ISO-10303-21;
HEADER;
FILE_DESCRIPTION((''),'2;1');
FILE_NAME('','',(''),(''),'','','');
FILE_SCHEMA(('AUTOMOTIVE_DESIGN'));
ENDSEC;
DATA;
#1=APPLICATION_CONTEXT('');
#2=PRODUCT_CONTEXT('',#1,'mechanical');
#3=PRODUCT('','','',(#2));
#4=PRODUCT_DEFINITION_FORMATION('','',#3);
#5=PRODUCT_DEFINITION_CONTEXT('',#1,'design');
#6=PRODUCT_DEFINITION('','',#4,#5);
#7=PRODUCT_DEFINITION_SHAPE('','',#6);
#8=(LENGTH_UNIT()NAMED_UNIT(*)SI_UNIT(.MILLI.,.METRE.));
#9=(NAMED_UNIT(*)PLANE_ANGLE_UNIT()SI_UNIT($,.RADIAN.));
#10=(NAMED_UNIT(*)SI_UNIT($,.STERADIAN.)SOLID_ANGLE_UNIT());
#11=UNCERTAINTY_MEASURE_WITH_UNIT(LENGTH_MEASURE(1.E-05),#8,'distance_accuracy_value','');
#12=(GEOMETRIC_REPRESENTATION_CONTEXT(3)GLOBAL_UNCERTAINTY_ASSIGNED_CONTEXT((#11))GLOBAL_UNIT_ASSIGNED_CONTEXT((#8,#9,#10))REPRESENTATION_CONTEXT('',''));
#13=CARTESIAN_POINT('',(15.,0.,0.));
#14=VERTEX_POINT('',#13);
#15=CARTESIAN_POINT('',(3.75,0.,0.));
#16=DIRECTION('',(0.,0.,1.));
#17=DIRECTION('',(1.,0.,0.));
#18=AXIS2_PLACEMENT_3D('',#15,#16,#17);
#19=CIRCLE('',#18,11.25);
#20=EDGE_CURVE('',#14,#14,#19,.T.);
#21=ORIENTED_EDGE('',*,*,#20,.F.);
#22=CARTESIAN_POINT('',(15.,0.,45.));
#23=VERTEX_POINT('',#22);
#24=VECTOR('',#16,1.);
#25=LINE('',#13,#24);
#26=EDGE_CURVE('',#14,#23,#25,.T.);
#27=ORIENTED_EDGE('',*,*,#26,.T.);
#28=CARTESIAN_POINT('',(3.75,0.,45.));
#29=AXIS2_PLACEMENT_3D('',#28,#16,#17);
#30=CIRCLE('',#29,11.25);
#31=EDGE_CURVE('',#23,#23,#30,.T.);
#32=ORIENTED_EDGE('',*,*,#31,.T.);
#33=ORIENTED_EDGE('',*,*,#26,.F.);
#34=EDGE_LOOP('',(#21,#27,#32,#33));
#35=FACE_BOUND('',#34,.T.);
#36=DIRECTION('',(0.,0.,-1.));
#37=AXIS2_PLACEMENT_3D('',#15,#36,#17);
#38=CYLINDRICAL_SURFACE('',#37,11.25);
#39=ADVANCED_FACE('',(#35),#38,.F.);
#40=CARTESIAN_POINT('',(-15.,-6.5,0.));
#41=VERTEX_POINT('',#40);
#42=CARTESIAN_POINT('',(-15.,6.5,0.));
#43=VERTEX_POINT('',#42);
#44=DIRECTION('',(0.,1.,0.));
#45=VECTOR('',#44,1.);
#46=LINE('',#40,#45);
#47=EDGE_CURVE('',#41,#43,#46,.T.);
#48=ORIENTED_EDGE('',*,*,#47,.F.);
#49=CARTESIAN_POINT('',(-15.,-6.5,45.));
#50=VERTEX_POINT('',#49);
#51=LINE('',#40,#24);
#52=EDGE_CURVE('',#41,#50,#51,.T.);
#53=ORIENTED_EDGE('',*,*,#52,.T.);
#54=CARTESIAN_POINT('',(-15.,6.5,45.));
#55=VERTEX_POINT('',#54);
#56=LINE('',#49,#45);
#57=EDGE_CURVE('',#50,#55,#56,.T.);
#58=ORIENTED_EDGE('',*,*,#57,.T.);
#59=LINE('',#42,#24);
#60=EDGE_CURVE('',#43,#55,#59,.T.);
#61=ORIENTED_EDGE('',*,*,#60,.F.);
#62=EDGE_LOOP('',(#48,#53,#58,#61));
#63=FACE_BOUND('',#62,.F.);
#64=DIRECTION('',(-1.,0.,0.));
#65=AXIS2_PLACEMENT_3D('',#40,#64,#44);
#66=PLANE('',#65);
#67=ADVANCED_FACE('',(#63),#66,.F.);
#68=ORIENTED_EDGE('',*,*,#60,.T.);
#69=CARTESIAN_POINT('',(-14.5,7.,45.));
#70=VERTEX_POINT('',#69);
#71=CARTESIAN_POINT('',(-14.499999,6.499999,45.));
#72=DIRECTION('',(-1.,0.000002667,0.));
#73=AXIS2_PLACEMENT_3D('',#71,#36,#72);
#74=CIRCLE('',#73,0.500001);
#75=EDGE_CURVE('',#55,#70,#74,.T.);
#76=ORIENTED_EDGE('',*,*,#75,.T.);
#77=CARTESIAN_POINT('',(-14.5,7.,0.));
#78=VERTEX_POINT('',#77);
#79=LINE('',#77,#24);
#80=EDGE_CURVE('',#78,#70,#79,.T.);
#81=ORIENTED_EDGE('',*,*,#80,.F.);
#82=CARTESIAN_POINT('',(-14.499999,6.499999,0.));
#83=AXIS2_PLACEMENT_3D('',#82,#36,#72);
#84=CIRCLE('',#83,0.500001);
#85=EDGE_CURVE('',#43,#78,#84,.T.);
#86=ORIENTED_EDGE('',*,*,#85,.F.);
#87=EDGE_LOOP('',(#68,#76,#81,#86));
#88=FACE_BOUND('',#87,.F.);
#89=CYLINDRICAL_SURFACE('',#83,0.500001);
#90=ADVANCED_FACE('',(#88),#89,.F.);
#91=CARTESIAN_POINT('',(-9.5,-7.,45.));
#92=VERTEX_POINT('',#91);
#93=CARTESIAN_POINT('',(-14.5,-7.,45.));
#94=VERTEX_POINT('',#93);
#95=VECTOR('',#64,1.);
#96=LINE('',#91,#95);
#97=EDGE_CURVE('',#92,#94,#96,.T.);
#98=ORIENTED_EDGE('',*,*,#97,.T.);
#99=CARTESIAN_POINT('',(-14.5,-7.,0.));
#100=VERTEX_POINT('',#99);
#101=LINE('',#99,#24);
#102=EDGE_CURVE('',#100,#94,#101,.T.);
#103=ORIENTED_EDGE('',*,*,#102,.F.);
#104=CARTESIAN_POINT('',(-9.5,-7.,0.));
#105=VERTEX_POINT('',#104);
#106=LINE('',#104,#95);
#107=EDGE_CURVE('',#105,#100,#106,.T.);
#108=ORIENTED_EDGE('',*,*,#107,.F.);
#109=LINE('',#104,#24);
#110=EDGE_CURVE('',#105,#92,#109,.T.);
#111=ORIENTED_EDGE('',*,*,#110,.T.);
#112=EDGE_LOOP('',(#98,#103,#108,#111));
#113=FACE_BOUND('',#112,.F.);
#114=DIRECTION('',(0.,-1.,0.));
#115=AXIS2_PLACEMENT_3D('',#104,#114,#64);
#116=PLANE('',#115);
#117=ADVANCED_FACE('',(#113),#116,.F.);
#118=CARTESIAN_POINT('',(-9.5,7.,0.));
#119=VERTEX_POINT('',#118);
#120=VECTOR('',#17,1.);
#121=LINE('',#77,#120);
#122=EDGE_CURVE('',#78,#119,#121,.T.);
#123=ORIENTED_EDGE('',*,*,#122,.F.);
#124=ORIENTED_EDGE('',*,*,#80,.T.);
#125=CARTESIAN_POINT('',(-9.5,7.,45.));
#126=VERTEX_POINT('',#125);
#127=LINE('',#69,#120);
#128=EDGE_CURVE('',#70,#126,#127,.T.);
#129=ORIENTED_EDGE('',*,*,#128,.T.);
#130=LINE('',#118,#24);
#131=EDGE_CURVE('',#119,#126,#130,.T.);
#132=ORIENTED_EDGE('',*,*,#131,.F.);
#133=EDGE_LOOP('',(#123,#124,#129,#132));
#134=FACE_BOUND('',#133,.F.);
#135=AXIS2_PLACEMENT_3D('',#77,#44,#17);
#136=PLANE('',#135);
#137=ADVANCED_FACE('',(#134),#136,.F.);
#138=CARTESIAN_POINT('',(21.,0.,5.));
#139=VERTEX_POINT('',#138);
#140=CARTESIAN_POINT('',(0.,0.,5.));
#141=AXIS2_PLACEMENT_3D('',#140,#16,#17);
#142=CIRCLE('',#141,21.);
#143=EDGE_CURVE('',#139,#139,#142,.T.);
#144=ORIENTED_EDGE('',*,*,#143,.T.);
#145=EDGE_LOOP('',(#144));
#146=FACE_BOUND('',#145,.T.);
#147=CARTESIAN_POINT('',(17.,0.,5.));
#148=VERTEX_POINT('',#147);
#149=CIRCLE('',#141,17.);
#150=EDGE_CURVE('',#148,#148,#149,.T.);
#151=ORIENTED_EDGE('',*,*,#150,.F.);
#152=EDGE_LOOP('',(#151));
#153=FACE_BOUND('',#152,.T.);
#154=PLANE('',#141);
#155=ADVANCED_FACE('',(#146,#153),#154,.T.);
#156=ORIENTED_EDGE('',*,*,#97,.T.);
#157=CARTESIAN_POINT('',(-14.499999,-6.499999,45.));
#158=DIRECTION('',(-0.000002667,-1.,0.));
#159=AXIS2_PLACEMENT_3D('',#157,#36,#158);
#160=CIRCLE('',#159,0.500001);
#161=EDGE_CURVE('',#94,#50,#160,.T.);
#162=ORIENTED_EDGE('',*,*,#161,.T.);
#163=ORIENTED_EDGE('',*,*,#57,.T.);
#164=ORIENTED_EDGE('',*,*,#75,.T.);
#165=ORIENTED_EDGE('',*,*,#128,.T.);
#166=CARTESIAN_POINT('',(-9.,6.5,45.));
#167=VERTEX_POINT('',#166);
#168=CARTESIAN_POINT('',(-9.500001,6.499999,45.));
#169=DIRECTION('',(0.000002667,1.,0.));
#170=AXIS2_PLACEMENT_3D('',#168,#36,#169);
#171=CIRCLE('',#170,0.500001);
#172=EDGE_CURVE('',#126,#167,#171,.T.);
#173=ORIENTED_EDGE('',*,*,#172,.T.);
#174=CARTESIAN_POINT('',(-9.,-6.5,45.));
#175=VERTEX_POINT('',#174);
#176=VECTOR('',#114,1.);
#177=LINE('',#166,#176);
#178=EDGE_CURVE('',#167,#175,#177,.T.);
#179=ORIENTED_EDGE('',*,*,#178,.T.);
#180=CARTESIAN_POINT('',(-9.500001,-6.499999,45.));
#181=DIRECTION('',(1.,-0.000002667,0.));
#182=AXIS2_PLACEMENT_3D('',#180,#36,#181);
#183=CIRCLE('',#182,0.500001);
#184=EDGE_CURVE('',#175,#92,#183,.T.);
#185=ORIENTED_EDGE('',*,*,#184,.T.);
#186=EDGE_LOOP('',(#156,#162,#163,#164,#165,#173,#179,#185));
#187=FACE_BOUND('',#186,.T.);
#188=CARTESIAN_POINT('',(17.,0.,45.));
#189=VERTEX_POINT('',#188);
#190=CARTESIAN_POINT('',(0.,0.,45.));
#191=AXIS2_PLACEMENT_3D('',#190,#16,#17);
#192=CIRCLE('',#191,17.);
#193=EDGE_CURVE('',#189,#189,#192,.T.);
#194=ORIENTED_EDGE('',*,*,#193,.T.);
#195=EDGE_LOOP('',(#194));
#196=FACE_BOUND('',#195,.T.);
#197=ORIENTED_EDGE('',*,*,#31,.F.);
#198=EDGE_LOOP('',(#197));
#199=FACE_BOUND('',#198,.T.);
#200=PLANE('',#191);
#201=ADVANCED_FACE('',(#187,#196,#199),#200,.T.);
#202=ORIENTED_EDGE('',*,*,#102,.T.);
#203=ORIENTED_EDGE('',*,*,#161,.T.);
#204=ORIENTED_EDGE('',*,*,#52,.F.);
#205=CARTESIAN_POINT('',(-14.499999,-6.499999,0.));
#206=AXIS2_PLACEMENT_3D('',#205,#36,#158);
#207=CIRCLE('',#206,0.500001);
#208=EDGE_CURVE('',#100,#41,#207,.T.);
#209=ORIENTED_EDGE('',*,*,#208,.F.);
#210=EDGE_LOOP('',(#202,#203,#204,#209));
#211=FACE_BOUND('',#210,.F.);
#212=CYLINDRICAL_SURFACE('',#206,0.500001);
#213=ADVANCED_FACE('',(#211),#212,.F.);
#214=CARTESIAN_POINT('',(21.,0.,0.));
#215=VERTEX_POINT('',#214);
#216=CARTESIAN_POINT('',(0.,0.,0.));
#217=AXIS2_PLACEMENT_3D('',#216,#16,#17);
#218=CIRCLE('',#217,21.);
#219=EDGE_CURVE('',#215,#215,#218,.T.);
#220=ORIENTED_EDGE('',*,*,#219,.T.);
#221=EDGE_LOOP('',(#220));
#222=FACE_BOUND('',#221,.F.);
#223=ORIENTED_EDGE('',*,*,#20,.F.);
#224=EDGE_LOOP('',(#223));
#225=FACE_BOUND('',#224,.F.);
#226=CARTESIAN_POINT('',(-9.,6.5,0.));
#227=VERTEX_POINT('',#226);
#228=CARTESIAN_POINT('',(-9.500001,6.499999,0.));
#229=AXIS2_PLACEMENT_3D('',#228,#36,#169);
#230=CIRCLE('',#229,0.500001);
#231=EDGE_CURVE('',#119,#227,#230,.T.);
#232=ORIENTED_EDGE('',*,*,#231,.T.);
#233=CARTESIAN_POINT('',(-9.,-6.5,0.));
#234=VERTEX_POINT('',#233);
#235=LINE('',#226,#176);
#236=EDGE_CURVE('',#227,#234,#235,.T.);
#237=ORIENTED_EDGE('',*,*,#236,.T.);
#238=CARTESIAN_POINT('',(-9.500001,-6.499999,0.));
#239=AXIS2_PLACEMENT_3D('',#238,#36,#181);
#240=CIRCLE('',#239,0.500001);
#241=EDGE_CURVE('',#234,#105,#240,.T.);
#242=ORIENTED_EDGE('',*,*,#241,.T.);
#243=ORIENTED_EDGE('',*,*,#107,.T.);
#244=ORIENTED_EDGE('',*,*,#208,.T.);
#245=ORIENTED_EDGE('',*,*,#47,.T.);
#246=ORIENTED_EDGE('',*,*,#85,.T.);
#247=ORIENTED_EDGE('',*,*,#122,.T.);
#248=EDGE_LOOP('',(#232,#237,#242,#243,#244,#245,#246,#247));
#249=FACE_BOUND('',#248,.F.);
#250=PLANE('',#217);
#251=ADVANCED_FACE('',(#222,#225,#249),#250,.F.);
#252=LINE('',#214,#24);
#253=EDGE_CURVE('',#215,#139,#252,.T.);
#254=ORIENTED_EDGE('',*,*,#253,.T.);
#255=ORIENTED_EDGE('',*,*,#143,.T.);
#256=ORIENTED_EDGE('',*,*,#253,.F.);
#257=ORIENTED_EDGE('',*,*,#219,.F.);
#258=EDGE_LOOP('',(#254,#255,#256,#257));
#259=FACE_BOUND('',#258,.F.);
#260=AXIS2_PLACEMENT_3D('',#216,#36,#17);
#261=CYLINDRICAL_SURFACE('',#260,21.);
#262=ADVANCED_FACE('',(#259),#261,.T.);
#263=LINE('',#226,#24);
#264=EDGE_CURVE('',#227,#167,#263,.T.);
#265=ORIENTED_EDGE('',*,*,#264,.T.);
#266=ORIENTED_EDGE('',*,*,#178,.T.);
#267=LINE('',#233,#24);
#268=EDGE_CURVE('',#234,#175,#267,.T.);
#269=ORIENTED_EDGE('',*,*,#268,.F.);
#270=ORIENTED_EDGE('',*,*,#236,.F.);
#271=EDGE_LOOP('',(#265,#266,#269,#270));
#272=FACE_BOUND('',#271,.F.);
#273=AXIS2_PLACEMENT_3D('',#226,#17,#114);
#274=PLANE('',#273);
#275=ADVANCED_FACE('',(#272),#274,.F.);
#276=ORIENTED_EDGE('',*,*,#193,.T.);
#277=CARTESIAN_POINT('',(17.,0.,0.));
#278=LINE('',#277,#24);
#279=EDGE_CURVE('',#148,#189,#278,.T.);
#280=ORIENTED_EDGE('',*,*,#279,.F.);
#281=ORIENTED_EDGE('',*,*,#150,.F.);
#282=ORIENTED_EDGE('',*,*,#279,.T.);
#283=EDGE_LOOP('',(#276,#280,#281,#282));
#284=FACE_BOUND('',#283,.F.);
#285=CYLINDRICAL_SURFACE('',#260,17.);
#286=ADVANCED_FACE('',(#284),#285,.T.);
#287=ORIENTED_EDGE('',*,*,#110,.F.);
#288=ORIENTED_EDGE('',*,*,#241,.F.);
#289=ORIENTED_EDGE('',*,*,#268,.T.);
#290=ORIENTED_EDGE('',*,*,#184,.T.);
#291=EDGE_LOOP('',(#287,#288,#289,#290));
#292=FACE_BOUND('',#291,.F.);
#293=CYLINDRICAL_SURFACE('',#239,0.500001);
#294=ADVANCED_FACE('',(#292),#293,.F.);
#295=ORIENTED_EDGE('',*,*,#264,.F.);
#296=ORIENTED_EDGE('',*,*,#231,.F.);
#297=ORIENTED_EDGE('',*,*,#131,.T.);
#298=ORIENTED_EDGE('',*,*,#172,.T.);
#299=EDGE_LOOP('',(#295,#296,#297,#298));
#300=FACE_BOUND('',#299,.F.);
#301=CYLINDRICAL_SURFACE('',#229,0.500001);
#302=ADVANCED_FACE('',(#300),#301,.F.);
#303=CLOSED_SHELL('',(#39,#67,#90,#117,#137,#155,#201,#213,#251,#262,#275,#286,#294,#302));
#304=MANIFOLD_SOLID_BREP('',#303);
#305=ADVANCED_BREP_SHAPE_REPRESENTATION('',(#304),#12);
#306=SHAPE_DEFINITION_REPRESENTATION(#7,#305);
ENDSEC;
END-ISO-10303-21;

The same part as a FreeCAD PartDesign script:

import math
import FreeCAD as App
import Part
import Sketcher
from FreeCAD import Vector
Q = App.Units.Quantity

doc = App.newDocument("Part")
body = doc.addObject("PartDesign::Body", "Body")

sketch1 = body.newObject("Sketcher::SketchObject", "Sketch")
sketch1.AttachmentSupport = (doc.getObject("XY_Plane"), [""])
sketch1.MapMode = "FlatFace"
sketch1.addGeometry(Part.Circle(Vector(0, 0, 0), Vector(0, 0, 1), 17), False)
sketch1.addGeometry(Part.LineSegment(Vector(-9, 6.5, 0), Vector(-9, -6.5, 0)), False)
sketch1.addGeometry(Part.ArcOfCircle(Part.Circle(Vector(-9.500001, -6.499999, 0), Vector(0, 0, 1), 0.500001), math.radians(-89.999847), math.radians(-0.000153)), False)
sketch1.addGeometry(Part.LineSegment(Vector(-9.5, -7, 0), Vector(-14.5, -7, 0)), False)
sketch1.addGeometry(Part.ArcOfCircle(Part.Circle(Vector(-14.499999, -6.499999, 0), Vector(0, 0, 1), 0.500001), math.radians(-179.999847), math.radians(-90.000153)), False)
sketch1.addGeometry(Part.LineSegment(Vector(-15, -6.5, 0), Vector(-15, 6.5, 0)), False)
sketch1.addGeometry(Part.ArcOfCircle(Part.Circle(Vector(-14.499999, 6.499999, 0), Vector(0, 0, 1), 0.500001), math.radians(90.000153), math.radians(179.999847)), False)
sketch1.addGeometry(Part.LineSegment(Vector(-14.5, 7, 0), Vector(-9.5, 7, 0)), False)
sketch1.addGeometry(Part.ArcOfCircle(Part.Circle(Vector(-9.500001, 6.499999, 0), Vector(0, 0, 1), 0.500001), math.radians(0.000153), math.radians(89.999847)), False)
sketch1.addGeometry(Part.Circle(Vector(3.75, 0, 0), Vector(0, 0, 1), 11.25), False)
sketch1.addConstraint(Sketcher.Constraint("Coincident", 1, 2, 2, 2))
sketch1.addConstraint(Sketcher.Constraint("Coincident", 2, 1, 3, 1))
sketch1.addConstraint(Sketcher.Constraint("Coincident", 3, 2, 4, 2))
sketch1.addConstraint(Sketcher.Constraint("Coincident", 4, 1, 5, 1))
sketch1.addConstraint(Sketcher.Constraint("Coincident", 5, 2, 6, 2))
sketch1.addConstraint(Sketcher.Constraint("Coincident", 6, 1, 7, 1))
sketch1.addConstraint(Sketcher.Constraint("Coincident", 7, 2, 8, 2))
sketch1.addConstraint(Sketcher.Constraint("Coincident", 8, 1, 1, 1))
sketch1.addConstraint(Sketcher.Constraint("Vertical", 1))
sketch1.addConstraint(Sketcher.Constraint("Horizontal", 3))
sketch1.addConstraint(Sketcher.Constraint("Vertical", 5))
sketch1.addConstraint(Sketcher.Constraint("Horizontal", 7))
sketch1.addConstraint(Sketcher.Constraint("Coincident", 0, 3, -1, 1))
sketch1.addConstraint(Sketcher.Constraint("Equal", 2, 4))
sketch1.addConstraint(Sketcher.Constraint("Equal", 4, 6))
sketch1.addConstraint(Sketcher.Constraint("Equal", 6, 8))
sketch1.addConstraint(Sketcher.Constraint("Symmetric", 3, 2, 6, 1, -1))
sketch1.addConstraint(Sketcher.Constraint("PointOnObject", 9, 3, -1))
sketch1.addConstraint(Sketcher.Constraint("Horizontal", 4, 3, 1, 2))
sketch1.addConstraint(Sketcher.Constraint("Horizontal", 1, 2, 4, 1))
sketch1.addConstraint(Sketcher.Constraint("Horizontal", 8, 3, 5, 2))
sketch1.addConstraint(Sketcher.Constraint("Horizontal", 5, 2, 8, 1))
sketch1.addConstraint(Sketcher.Constraint("Vertical", 8, 3, 2, 1))
sketch1.addConstraint(Sketcher.Constraint("Vertical", 6, 3, 3, 2))
sketch1.addConstraint(Sketcher.Constraint("Vertical", 2, 1, 7, 2))
sketch1.addConstraint(Sketcher.Constraint("Diameter", 0, Q("34 mm")))
sketch1.addConstraint(Sketcher.Constraint("Diameter", 9, Q("22.5 mm")))
sketch1.addConstraint(Sketcher.Constraint("Radius", 2, Q("0.500001 mm")))
sketch1.addConstraint(Sketcher.Constraint("DistanceX", 3, 2, 3, 1, Q("5 mm")))
sketch1.addConstraint(Sketcher.Constraint("DistanceY", 1, 2, 1, 1, Q("13 mm")))
sketch1.addConstraint(Sketcher.Constraint("DistanceX", 1, 2, -1, 1, Q("9 mm")))
sketch1.addConstraint(Sketcher.Constraint("DistanceX", -1, 1, 9, 3, Q("3.75 mm")))
pad1 = body.newObject("PartDesign::Pad", "Pad")
pad1.Profile = sketch1
pad1.Length = 45

sketch2 = body.newObject("Sketcher::SketchObject", "Sketch001")
sketch2.AttachmentSupport = (doc.getObject("XY_Plane"), [""])
sketch2.MapMode = "FlatFace"
sketch2.addGeometry(Part.Circle(Vector(0, 0, 0), Vector(0, 0, 1), 21), False)
sketch2.addGeometry(Part.Circle(Vector(0, 0, 0), Vector(0, 0, 1), 17), False)
sketch2.addConstraint(Sketcher.Constraint("Coincident", 0, 3, -1, 1))
sketch2.addConstraint(Sketcher.Constraint("Coincident", 1, 3, -1, 1))
sketch2.addConstraint(Sketcher.Constraint("Diameter", 0, Q("42 mm")))
sketch2.addConstraint(Sketcher.Constraint("Diameter", 1, Q("34 mm")))
pad2 = body.newObject("PartDesign::Pad", "Pad001")
pad2.Profile = sketch2
pad2.Length = 5

doc.recompute()
